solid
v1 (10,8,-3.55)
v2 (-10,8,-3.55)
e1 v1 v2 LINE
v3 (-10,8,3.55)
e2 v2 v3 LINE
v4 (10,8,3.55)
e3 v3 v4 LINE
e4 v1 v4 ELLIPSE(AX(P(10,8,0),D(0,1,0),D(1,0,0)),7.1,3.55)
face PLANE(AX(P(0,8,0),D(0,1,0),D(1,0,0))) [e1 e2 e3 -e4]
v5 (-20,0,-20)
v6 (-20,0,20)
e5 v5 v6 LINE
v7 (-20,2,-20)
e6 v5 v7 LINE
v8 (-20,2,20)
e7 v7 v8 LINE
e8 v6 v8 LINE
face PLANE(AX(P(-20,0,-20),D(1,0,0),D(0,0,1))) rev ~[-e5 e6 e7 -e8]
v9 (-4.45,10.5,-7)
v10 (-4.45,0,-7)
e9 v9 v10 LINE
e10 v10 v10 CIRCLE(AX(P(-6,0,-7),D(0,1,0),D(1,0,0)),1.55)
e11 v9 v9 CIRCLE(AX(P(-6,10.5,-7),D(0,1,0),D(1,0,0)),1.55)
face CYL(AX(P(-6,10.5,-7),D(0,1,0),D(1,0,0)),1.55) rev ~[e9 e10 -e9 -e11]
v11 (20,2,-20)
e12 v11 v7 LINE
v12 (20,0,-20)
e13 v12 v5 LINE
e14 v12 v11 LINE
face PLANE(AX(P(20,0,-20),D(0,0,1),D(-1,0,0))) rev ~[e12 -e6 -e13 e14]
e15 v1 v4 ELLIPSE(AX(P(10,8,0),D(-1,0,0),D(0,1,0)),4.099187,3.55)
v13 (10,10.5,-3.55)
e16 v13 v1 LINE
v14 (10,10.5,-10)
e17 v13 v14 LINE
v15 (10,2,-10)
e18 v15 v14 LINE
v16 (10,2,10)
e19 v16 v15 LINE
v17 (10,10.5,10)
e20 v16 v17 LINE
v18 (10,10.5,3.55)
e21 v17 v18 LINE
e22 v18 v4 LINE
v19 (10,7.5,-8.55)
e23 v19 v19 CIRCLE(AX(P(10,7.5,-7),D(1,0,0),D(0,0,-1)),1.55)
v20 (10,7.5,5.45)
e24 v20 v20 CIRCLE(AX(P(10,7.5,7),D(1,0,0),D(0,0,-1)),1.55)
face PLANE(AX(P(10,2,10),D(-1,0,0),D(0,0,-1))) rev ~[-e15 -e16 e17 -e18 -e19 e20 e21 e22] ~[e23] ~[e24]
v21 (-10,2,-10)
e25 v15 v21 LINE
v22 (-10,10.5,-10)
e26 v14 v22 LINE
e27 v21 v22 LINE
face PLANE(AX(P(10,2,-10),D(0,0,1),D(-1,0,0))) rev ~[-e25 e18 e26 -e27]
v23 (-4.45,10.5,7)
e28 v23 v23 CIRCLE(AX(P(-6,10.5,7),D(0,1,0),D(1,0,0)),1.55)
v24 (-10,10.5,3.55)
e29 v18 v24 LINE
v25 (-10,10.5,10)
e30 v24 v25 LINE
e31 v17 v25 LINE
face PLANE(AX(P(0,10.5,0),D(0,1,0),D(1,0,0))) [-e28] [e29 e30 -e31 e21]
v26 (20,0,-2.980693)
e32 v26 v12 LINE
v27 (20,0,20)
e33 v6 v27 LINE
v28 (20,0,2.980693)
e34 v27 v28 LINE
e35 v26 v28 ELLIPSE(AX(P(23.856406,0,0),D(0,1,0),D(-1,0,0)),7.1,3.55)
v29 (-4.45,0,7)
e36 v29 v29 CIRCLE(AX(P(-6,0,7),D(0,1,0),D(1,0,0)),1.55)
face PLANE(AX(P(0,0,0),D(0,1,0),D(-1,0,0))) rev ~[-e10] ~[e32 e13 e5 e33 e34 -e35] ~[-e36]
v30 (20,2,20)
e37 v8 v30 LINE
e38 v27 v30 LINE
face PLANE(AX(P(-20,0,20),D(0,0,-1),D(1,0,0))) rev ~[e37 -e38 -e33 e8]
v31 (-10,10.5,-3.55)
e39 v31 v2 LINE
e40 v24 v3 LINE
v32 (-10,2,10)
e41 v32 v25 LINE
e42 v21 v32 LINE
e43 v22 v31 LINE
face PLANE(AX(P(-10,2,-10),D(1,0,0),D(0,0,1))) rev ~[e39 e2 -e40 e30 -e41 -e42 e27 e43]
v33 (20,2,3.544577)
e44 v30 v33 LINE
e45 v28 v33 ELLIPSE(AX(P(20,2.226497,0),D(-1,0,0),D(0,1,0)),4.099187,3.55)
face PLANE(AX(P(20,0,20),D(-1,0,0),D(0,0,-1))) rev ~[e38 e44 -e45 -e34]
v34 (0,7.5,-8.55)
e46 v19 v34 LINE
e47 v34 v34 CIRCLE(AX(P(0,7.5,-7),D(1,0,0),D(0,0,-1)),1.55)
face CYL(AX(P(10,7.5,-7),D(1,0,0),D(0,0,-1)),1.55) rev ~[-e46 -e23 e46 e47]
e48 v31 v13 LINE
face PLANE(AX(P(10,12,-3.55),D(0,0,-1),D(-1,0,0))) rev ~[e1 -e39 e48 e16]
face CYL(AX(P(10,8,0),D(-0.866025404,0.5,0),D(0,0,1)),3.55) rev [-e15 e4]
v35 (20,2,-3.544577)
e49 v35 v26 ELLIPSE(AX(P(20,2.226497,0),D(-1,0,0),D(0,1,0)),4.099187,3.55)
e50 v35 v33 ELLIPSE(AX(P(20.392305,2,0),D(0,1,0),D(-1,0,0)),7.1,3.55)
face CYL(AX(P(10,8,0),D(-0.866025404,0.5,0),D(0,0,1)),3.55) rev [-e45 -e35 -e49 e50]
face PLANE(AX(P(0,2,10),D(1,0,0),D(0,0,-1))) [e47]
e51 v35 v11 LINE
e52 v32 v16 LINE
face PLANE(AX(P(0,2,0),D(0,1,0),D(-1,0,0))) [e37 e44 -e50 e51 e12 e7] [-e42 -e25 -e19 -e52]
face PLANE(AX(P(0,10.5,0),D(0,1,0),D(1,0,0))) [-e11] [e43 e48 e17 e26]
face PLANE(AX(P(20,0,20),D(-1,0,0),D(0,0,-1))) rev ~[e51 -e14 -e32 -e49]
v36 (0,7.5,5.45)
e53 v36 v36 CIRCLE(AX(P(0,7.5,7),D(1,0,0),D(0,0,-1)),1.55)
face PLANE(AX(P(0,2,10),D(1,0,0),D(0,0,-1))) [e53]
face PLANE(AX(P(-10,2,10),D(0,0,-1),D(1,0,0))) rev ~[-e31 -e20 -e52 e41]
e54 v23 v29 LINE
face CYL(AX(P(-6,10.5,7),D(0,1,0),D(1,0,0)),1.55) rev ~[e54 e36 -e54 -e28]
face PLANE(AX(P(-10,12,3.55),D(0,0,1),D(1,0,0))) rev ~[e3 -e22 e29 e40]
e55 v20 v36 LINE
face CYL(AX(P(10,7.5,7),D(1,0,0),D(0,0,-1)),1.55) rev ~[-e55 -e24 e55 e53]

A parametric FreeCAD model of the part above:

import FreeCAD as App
import Part
import Sketcher
from FreeCAD import Vector
Q = App.Units.Quantity


def add_polygon(sketch, points):
    """Adds a closed chain of lines whose ends are joined by coincident constraints."""
    first, n = sketch.GeometryCount, len(points)
    for a, b in zip(points, points[1:] + points[:1]):
        sketch.addGeometry(Part.LineSegment(App.Vector(*a, 0), App.Vector(*b, 0)), False)
    for i in range(n):
        sketch.addConstraint(Sketcher.Constraint("Coincident", first + i, 2, first + (i + 1) % n, 1))

doc = App.newDocument("Part")
body = doc.addObject("PartDesign::Body", "Body")

# Sketch on XZ plane
sketch1 = doc.addObject("Sketcher::SketchObject", "Sketch")
body.addObject(sketch1)
sketch1.AttachmentSupport = (doc.XZ_Plane, [""])
sketch1.MapMode = "FlatFace"
add_polygon(sketch1, [(-20, -20), (-20, 20), (20, 20), (20, -20)])  # lines 0-3
sketch1.addConstraint(Sketcher.Constraint("Vertical", 0))
sketch1.addConstraint(Sketcher.Constraint("Horizontal", 1))
sketch1.addConstraint(Sketcher.Constraint("Vertical", 2))
sketch1.addConstraint(Sketcher.Constraint("Horizontal", 3))
sketch1.addConstraint(Sketcher.Constraint("Symmetric", 0, 2, 2, 2, -1, 1))
sketch1.addConstraint(Sketcher.Constraint("Equal", 3, 0))
sketch1.addConstraint(Sketcher.Constraint("DistanceX", 1, 1, 1, 2, Q("40 mm")))
pad1 = doc.addObject("PartDesign::Pad", "Pad")
body.addObject(pad1)
pad1.Profile = sketch1
pad1.Length = 2
pad1.Reversed = True

# Sketch on XZ plane
sketch2 = doc.addObject("Sketcher::SketchObject", "Sketch001")
body.addObject(sketch2)
sketch2.AttachmentSupport = (doc.XZ_Plane, [""])
sketch2.MapMode = "FlatFace"
sketch2.AttachmentOffset = App.Placement(Vector(0, 0, -2), App.Rotation())
add_polygon(sketch2, [(-10, -10), (-10, 10), (10, 10), (10, -10)])  # lines 0-3
sketch2.addConstraint(Sketcher.Constraint("Vertical", 0))
sketch2.addConstraint(Sketcher.Constraint("Horizontal", 1))
sketch2.addConstraint(Sketcher.Constraint("Vertical", 2))
sketch2.addConstraint(Sketcher.Constraint("Horizontal", 3))
sketch2.addConstraint(Sketcher.Constraint("Symmetric", 0, 2, 2, 2, -1, 1))
sketch2.addConstraint(Sketcher.Constraint("Equal", 3, 0))
sketch2.addConstraint(Sketcher.Constraint("DistanceX", 1, 1, 1, 2, Q("20 mm")))
pad2 = doc.addObject("PartDesign::Pad", "Pad001")
body.addObject(pad2)
pad2.Profile = sketch2
pad2.Length = 10
pad2.Reversed = True

# Sketch on XZ plane
sketch3 = doc.addObject("Sketcher::SketchObject", "Sketch002")
body.addObject(sketch3)
sketch3.AttachmentSupport = (doc.XZ_Plane, [""])
sketch3.MapMode = "FlatFace"
sketch3.AttachmentOffset = App.Placement(Vector(0, 0, -12), App.Rotation())
add_polygon(sketch3, [(10, -3.55), (-10, -3.55), (-10, 3.55), (10, 3.55)])  # lines 0-3
sketch3.addConstraint(Sketcher.Constraint("Horizontal", 0))
sketch3.addConstraint(Sketcher.Constraint("Vertical", 1))
sketch3.addConstraint(Sketcher.Constraint("Horizontal", 2))
sketch3.addConstraint(Sketcher.Constraint("Vertical", 3))
sketch3.addConstraint(Sketcher.Constraint("Symmetric", 0, 2, 2, 2, -1, 1))
sketch3.addConstraint(Sketcher.Constraint("DistanceY", 1, 1, 1, 2, Q("7.1 mm")))
sketch3.addConstraint(Sketcher.Constraint("DistanceX", 0, 2, 0, 1, Q("20 mm")))
pocket1 = doc.addObject("PartDesign::Pocket", "Pocket")
body.addObject(pocket1)
pocket1.Profile = sketch3
pocket1.Length = 4
pocket1.Reversed = True

# Sketch on an angled plane
sketch4 = doc.addObject("Sketcher::SketchObject", "Sketch003")
body.addObject(sketch4)
sketch4.Placement = App.Placement(Vector(10, 8, 5), App.Rotation(Vector(0, 0, 1), Vector(-0.5, -0.866025404, 0), Vector(0.866025404, -0.5, 0), "ZXY"))
sketch4.addGeometry(Part.Circle(Vector(-5, 0, 0), Vector(0, 0, 1), 3.55), False)
sketch4.addConstraint(Sketcher.Constraint("PointOnObject", 0, 3, -1))
sketch4.addConstraint(Sketcher.Constraint("Diameter", 0, Q("7.1 mm")))
sketch4.addConstraint(Sketcher.Constraint("DistanceX", 0, 3, -1, 1, Q("5 mm")))
pocket2 = doc.addObject("PartDesign::Pocket", "Pocket001")
body.addObject(pocket2)
pocket2.Profile = sketch4
pocket2.Type = "ThroughAll"
pocket2.Midplane = True

# Sketch on XZ plane
sketch5 = doc.addObject("Sketcher::SketchObject", "Sketch004")
body.addObject(sketch5)
sketch5.AttachmentSupport = (doc.XZ_Plane, [""])
sketch5.MapMode = "FlatFace"
sketch5.AttachmentOffset = App.Placement(Vector(0, 0, -12), App.Rotation())
add_polygon(sketch5, [(-10, 10), (10, 10), (10, 3.55), (-10, 3.55)])  # lines 0-3
add_polygon(sketch5, [(-10, -10.1436), (-10, -3.0802), (10, -3.0802), (10, -10.1436)])  # lines 4-7
sketch5.addConstraint(Sketcher.Constraint("Horizontal", 0))
sketch5.addConstraint(Sketcher.Constraint("Vertical", 1))
sketch5.addConstraint(Sketcher.Constraint("Horizontal", 2))
sketch5.addConstraint(Sketcher.Constraint("Vertical", 3))
sketch5.addConstraint(Sketcher.Constraint("Vertical", 4))
sketch5.addConstraint(Sketcher.Constraint("Horizontal", 5))
sketch5.addConstraint(Sketcher.Constraint("Vertical", 6))
sketch5.addConstraint(Sketcher.Constraint("Horizontal", 7))
sketch5.addConstraint(Sketcher.Constraint("Vertical", 3, 2, 4, 2))
sketch5.addConstraint(Sketcher.Constraint("Vertical", 1, 2, 5, 2))
sketch5.addConstraint(Sketcher.Constraint("DistanceX", 0, 1, 0, 2, Q("20 mm")))
sketch5.addConstraint(Sketcher.Constraint("DistanceX", -1, 1, 0, 2, Q("10 mm")))
sketch5.addConstraint(Sketcher.Constraint("DistanceY", -1, 1, 0, 2, Q("10 mm")))
sketch5.addConstraint(Sketcher.Constraint("DistanceY", 1, 2, 1, 1, Q("6.45 mm")))
sketch5.addConstraint(Sketcher.Constraint("DistanceY", 4, 1, 4, 2, Q("7.0634 mm")))
sketch5.addConstraint(Sketcher.Constraint("DistanceY", 4, 2, -1, 1, Q("3.0802 mm")))
pocket3 = doc.addObject("PartDesign::Pocket", "Pocket002")
body.addObject(pocket3)
pocket3.Profile = sketch5
pocket3.Length = 1.5
pocket3.Reversed = True

# Sketch on XZ plane
sketch6 = doc.addObject("Sketcher::SketchObject", "Sketch005")
body.addObject(sketch6)
sketch6.AttachmentSupport = (doc.XZ_Plane, [""])
sketch6.MapMode = "FlatFace"
sketch6.AttachmentOffset = App.Placement(Vector(0, 0, -10.5), App.Rotation())
sketch6.addGeometry(Part.Circle(Vector(-6, 7, 0), Vector(0, 0, 1), 1.55), False)
sketch6.addGeometry(Part.Circle(Vector(-6, -7, 0), Vector(0, 0, 1), 1.55), False)
sketch6.addConstraint(Sketcher.Constraint("Equal", 0, 1))
sketch6.addConstraint(Sketcher.Constraint("Symmetric", 0, 3, 1, 3, -1))
sketch6.addConstraint(Sketcher.Constraint("Diameter", 0, Q("3.1 mm")))
sketch6.addConstraint(Sketcher.Constraint("DistanceX", 0, 3, -1, 1, Q("6 mm")))
sketch6.addConstraint(Sketcher.Constraint("DistanceY", -1, 1, 0, 3, Q("7 mm")))
pocket4 = doc.addObject("PartDesign::Pocket", "Pocket003")
body.addObject(pocket4)
pocket4.Profile = sketch6
pocket4.Type = "ThroughAll"
pocket4.Reversed = True

# Sketch on YZ plane
sketch7 = doc.addObject("Sketcher::SketchObject", "Sketch006")
body.addObject(sketch7)
sketch7.AttachmentSupport = (doc.YZ_Plane, [""])
sketch7.MapMode = "FlatFace"
sketch7.AttachmentOffset = App.Placement(Vector(0, 0, 10), App.Rotation())
sketch7.addGeometry(Part.Circle(Vector(7.5, 7, 0), Vector(0, 0, 1), 1.55), False)
sketch7.addGeometry(Part.Circle(Vector(7.5, -7, 0), Vector(0, 0, 1), 1.55), False)
sketch7.addConstraint(Sketcher.Constraint("Equal", 0, 1))
sketch7.addConstraint(Sketcher.Constraint("Symmetric", 0, 3, 1, 3, -1))
sketch7.addConstraint(Sketcher.Constraint("Diameter", 0, Q("3.1 mm")))
sketch7.addConstraint(Sketcher.Constraint("DistanceY", -1, 1, 0, 3, Q("7 mm")))
sketch7.addConstraint(Sketcher.Constraint("DistanceX", -1, 1, 0, 3, Q("7.5 mm")))
pocket5 = doc.addObject("PartDesign::Pocket", "Pocket004")
body.addObject(pocket5)
pocket5.Profile = sketch7
pocket5.Length = 10

doc.recompute()
